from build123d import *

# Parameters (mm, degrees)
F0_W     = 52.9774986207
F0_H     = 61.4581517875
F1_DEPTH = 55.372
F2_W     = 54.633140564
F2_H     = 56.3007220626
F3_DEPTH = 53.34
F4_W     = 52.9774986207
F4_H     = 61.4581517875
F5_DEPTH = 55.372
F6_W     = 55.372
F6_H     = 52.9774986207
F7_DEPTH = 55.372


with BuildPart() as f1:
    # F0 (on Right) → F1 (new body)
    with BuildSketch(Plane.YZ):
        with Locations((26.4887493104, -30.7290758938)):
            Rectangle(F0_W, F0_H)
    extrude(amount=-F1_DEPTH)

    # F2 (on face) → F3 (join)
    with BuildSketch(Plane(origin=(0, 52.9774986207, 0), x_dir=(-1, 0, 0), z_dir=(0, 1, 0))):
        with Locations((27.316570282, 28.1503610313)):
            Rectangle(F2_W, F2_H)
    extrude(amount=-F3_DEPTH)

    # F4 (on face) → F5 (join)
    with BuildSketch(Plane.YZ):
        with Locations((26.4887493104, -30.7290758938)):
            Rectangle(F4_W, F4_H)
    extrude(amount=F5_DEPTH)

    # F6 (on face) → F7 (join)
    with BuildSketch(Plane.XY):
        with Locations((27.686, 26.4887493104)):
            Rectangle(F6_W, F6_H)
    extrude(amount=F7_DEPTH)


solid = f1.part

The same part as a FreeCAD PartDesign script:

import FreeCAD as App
import Part
import Sketcher
Q = App.Units.Quantity

doc = App.newDocument("Part")
body = doc.addObject("PartDesign::Body", "Body")

# Sketch on YZ plane
sketch1 = body.newObject("Sketcher::SketchObject", "Sketch")
sketch1.AttachmentSupport = (doc.getObject("YZ_Plane"), [""])
sketch1.MapMode = "FlatFace"
sketch1.addGeometry(Part.LineSegment(App.Vector(0, 0, 0), App.Vector(0, -61.458152, 0)), False)
sketch1.addGeometry(Part.LineSegment(App.Vector(0, -61.458152, 0), App.Vector(52.977499, -61.458152, 0)), False)
sketch1.addGeometry(Part.LineSegment(App.Vector(52.977499, -61.458152, 0), App.Vector(52.977499, 0, 0)), False)
sketch1.addGeometry(Part.LineSegment(App.Vector(52.977499, 0, 0), App.Vector(0, 0, 0)), False)
sketch1.addConstraint(Sketcher.Constraint("Coincident", 0, 2, 1, 1))
sketch1.addConstraint(Sketcher.Constraint("Coincident", 1, 2, 2, 1))
sketch1.addConstraint(Sketcher.Constraint("Coincident", 2, 2, 3, 1))
sketch1.addConstraint(Sketcher.Constraint("Coincident", 3, 2, 0, 1))
sketch1.addConstraint(Sketcher.Constraint("Vertical", 0))
sketch1.addConstraint(Sketcher.Constraint("Horizontal", 1))
sketch1.addConstraint(Sketcher.Constraint("Vertical", 2))
sketch1.addConstraint(Sketcher.Constraint("Horizontal", 3))
sketch1.addConstraint(Sketcher.Constraint("Coincident", 3, 2, -1, 1))
sketch1.addConstraint(Sketcher.Constraint("DistanceX", 1, 1, 1, 2, Q("52.977499 mm")))
sketch1.addConstraint(Sketcher.Constraint("DistanceY", 0, 2, 0, 1, Q("61.458152 mm")))
pad1 = body.newObject("PartDesign::Pad", "Pad")
pad1.Profile = sketch1
pad1.Length = Q("2.18 in")
pad1.Reversed = True

# Sketch on XZ plane
sketch2 = body.newObject("Sketcher::SketchObject", "Sketch001")
sketch2.AttachmentSupport = (doc.getObject("XZ_Plane"), [""])
sketch2.MapMode = "FlatFace"
sketch2.AttachmentOffset = App.Placement(App.Vector(0, 0, -52.977499), App.Rotation())
sketch2.addGeometry(Part.LineSegment(App.Vector(0, 56.300722, 0), App.Vector(0, 0, 0)), False)
sketch2.addGeometry(Part.LineSegment(App.Vector(0, 0, 0), App.Vector(-54.633141, 0, 0)), False)
sketch2.addGeometry(Part.LineSegment(App.Vector(-54.633141, 0, 0), App.Vector(-54.633141, 56.300722, 0)), False)
sketch2.addGeometry(Part.LineSegment(App.Vector(-54.633141, 56.300722, 0), App.Vector(0, 56.300722, 0)), False)
sketch2.addConstraint(Sketcher.Constraint("Coincident", 0, 2, 1, 1))
sketch2.addConstraint(Sketcher.Constraint("Coincident", 1, 2, 2, 1))
sketch2.addConstraint(Sketcher.Constraint("Coincident", 2, 2, 3, 1))
sketch2.addConstraint(Sketcher.Constraint("Coincident", 3, 2, 0, 1))
sketch2.addConstraint(Sketcher.Constraint("Vertical", 0))
sketch2.addConstraint(Sketcher.Constraint("Horizontal", 1))
sketch2.addConstraint(Sketcher.Constraint("Vertical", 2))
sketch2.addConstraint(Sketcher.Constraint("Horizontal", 3))
sketch2.addConstraint(Sketcher.Constraint("Coincident", 0, 2, -1, 1))
sketch2.addConstraint(Sketcher.Constraint("DistanceX", 1, 2, 1, 1, Q("54.633141 mm")))
sketch2.addConstraint(Sketcher.Constraint("DistanceY", 0, 2, 0, 1, Q("56.300722 mm")))
pad2 = body.newObject("PartDesign::Pad", "Pad001")
pad2.Profile = sketch2
pad2.Length = Q("2.1 in")

# Sketch on YZ plane
sketch3 = body.newObject("Sketcher::SketchObject", "Sketch002")
sketch3.AttachmentSupport = (doc.getObject("YZ_Plane"), [""])
sketch3.MapMode = "FlatFace"
sketch3.addGeometry(Part.LineSegment(App.Vector(0, 0, 0), App.Vector(0, -61.458152, 0)), False)
sketch3.addGeometry(Part.LineSegment(App.Vector(0, -61.458152, 0), App.Vector(52.977499, -61.458152, 0)), False)
sketch3.addGeometry(Part.LineSegment(App.Vector(52.977499, -61.458152, 0), App.Vector(52.977499, 0, 0)), False)
sketch3.addGeometry(Part.LineSegment(App.Vector(52.977499, 0, 0), App.Vector(0, 0, 0)), False)
sketch3.addConstraint(Sketcher.Constraint("Coincident", 0, 2, 1, 1))
sketch3.addConstraint(Sketcher.Constraint("Coincident", 1, 2, 2, 1))
sketch3.addConstraint(Sketcher.Constraint("Coincident", 2, 2, 3, 1))
sketch3.addConstraint(Sketcher.Constraint("Coincident", 3, 2, 0, 1))
sketch3.addConstraint(Sketcher.Constraint("Vertical", 0))
sketch3.addConstraint(Sketcher.Constraint("Horizontal", 1))
sketch3.addConstraint(Sketcher.Constraint("Vertical", 2))
sketch3.addConstraint(Sketcher.Constraint("Horizontal", 3))
sketch3.addConstraint(Sketcher.Constraint("Coincident", 3, 2, -1, 1))
sketch3.addConstraint(Sketcher.Constraint("DistanceX", 1, 1, 1, 2, Q("52.977499 mm")))
sketch3.addConstraint(Sketcher.Constraint("DistanceY", 0, 2, 0, 1, Q("61.458152 mm")))
pad3 = body.newObject("PartDesign::Pad", "Pad002")
pad3.Profile = sketch3
pad3.Length = Q("2.18 in")

# Sketch on XY plane
sketch4 = body.newObject("Sketcher::SketchObject", "Sketch003")
sketch4.AttachmentSupport = (doc.getObject("XY_Plane"), [""])
sketch4.MapMode = "FlatFace"
sketch4.addGeometry(Part.LineSegment(App.Vector(0, 52.977499, 0), App.Vector(0, 0, 0)), False)
sketch4.addGeometry(Part.LineSegment(App.Vector(0, 0, 0), App.Vector(55.372, 0, 0)), False)
sketch4.addGeometry(Part.LineSegment(App.Vector(55.372, 0, 0), App.Vector(55.372, 52.977499, 0)), False)
sketch4.addGeometry(Part.LineSegment(App.Vector(55.372, 52.977499, 0), App.Vector(0, 52.977499, 0)), False)
sketch4.addConstraint(Sketcher.Constraint("Coincident", 0, 2, 1, 1))
sketch4.addConstraint(Sketcher.Constraint("Coincident", 1, 2, 2, 1))
sketch4.addConstraint(Sketcher.Constraint("Coincident", 2, 2, 3, 1))
sketch4.addConstraint(Sketcher.Constraint("Coincident", 3, 2, 0, 1))
sketch4.addConstraint(Sketcher.Constraint("Vertical", 0))
sketch4.addConstraint(Sketcher.Constraint("Horizontal", 1))
sketch4.addConstraint(Sketcher.Constraint("Vertical", 2))
sketch4.addConstraint(Sketcher.Constraint("Horizontal", 3))
sketch4.addConstraint(Sketcher.Constraint("Coincident", 0, 2, -1, 1))
sketch4.addConstraint(Sketcher.Constraint("DistanceX", 1, 1, 1, 2, Q("2.18 in")))
sketch4.addConstraint(Sketcher.Constraint("DistanceY", 0, 2, 0, 1, Q("52.977499 mm")))
pad4 = body.newObject("PartDesign::Pad", "Pad003")
pad4.Profile = sketch4
pad4.Length = Q("2.18 in")

doc.recompute()
